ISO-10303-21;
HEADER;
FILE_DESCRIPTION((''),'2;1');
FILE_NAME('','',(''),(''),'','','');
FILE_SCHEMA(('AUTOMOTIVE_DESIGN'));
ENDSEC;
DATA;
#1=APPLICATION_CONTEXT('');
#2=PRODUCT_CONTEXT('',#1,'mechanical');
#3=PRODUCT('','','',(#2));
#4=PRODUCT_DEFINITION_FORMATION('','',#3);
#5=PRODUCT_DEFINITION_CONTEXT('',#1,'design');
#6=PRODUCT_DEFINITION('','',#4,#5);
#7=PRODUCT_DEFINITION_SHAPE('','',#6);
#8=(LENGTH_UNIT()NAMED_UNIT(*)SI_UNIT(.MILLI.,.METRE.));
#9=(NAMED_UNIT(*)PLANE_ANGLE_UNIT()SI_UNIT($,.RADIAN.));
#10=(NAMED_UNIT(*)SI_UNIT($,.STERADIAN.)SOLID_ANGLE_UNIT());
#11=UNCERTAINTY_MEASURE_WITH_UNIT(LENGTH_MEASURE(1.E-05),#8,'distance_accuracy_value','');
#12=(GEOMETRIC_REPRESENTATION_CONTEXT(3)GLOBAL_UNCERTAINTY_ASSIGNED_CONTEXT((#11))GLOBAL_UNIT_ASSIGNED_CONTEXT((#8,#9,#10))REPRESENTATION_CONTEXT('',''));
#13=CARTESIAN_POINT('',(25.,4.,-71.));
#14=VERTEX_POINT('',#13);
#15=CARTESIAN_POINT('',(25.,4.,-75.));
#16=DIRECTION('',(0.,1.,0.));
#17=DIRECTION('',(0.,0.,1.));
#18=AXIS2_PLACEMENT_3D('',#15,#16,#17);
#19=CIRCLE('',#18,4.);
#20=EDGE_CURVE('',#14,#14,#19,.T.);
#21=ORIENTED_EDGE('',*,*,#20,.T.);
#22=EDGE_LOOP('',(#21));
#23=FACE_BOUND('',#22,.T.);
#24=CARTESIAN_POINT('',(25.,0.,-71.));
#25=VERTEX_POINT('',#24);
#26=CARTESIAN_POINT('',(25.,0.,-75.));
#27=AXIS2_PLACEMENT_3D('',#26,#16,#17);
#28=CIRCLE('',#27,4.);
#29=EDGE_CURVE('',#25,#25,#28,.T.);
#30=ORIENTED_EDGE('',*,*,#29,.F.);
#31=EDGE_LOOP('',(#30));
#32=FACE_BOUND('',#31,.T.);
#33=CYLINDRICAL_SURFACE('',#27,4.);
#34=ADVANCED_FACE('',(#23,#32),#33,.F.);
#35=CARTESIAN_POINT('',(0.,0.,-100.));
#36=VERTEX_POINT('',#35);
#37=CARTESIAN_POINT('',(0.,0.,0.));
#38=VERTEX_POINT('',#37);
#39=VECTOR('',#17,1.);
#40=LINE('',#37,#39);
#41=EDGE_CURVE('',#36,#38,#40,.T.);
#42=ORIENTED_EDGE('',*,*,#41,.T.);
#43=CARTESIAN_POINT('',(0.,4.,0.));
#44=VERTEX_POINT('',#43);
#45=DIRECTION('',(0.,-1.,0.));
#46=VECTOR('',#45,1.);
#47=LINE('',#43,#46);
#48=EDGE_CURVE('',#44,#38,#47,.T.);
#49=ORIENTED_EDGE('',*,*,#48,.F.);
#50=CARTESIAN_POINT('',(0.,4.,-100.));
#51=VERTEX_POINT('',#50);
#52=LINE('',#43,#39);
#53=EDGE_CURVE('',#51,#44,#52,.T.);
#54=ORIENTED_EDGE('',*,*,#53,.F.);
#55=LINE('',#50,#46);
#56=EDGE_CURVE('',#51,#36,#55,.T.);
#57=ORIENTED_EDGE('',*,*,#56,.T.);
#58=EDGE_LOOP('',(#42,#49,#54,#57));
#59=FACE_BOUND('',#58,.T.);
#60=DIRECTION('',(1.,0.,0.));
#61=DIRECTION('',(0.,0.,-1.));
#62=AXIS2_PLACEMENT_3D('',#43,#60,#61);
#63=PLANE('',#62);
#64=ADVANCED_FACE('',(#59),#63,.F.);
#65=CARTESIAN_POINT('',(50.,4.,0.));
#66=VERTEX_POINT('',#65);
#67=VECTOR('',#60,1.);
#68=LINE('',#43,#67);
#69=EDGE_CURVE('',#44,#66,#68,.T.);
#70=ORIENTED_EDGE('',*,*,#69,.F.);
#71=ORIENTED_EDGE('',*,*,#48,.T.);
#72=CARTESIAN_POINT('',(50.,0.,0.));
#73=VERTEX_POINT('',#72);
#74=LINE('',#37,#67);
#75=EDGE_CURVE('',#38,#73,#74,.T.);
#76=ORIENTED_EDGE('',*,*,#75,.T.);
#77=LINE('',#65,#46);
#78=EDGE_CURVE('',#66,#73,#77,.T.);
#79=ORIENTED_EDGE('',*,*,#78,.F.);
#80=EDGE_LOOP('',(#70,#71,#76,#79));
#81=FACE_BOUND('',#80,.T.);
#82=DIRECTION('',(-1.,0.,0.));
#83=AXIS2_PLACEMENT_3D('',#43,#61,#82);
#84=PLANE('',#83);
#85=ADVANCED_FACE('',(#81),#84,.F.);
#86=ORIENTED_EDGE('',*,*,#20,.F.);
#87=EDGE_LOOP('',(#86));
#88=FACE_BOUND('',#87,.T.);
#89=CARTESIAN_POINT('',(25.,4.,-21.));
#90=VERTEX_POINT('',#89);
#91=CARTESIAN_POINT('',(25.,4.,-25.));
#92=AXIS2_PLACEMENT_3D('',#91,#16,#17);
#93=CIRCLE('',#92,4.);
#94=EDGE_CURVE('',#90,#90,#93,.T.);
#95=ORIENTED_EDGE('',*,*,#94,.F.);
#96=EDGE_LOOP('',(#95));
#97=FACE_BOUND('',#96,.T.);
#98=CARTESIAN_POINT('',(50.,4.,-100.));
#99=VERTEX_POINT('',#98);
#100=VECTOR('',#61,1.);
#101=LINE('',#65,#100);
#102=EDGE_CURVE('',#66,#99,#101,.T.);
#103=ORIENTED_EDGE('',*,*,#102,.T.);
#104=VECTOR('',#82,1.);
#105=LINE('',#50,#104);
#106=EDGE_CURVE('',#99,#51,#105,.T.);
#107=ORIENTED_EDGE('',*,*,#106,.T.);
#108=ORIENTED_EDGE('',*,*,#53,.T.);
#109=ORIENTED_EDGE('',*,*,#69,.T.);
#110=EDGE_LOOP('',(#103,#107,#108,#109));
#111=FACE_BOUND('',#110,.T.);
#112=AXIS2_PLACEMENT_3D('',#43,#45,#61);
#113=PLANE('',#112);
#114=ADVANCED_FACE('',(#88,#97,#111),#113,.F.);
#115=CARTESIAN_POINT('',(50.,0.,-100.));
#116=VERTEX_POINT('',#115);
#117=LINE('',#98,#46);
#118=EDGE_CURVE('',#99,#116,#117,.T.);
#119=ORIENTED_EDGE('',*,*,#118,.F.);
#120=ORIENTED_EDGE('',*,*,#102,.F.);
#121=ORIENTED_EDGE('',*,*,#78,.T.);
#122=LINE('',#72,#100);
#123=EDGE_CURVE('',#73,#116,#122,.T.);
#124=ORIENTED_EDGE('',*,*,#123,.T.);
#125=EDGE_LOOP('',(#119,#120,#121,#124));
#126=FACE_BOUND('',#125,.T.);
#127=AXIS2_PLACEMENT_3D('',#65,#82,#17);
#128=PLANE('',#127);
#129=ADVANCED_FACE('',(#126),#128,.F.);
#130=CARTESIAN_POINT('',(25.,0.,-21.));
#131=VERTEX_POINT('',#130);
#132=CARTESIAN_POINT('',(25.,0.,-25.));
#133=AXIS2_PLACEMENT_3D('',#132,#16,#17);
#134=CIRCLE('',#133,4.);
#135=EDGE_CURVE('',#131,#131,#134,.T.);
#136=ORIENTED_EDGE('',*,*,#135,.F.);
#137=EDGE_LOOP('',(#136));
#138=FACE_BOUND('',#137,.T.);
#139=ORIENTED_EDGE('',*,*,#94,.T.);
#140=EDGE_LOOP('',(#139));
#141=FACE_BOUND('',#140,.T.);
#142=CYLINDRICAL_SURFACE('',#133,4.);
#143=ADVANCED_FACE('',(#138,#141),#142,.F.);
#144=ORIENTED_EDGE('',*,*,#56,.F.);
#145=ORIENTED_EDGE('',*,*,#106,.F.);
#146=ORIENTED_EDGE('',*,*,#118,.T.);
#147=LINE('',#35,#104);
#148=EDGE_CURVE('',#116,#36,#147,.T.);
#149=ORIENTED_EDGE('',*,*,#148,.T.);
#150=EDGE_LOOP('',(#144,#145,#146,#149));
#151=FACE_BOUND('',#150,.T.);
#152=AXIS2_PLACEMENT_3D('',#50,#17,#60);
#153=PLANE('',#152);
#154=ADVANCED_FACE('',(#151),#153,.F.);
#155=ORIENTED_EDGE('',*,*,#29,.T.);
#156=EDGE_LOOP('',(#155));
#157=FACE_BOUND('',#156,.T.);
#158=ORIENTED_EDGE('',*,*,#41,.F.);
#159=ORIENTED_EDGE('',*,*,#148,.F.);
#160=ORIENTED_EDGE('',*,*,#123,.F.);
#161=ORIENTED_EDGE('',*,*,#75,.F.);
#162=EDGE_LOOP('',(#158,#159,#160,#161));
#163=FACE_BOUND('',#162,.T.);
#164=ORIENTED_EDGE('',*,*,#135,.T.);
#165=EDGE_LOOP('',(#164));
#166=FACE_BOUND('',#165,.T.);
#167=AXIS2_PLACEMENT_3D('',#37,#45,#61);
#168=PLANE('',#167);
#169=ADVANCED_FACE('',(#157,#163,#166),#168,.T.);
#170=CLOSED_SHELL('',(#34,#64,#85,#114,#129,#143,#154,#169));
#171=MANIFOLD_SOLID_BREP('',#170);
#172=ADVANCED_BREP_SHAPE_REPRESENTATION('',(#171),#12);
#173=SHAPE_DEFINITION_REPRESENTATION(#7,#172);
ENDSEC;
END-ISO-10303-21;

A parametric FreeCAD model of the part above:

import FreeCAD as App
import Part
import Sketcher

V = App.Vector
Q = App.Units.Quantity


def add_polygon(sketch, points):
    """Adds a closed chain of lines whose ends are joined by coincident constraints."""
    first, n = sketch.GeometryCount, len(points)
    for a, b in zip(points, points[1:] + points[:1]):
        sketch.addGeometry(Part.LineSegment(App.Vector(*a, 0), App.Vector(*b, 0)), False)
    for i in range(n):
        sketch.addConstraint(Sketcher.Constraint("Coincident", first + i, 2, first + (i + 1) % n, 1))

doc = App.newDocument("Part")
body = doc.addObject("PartDesign::Body", "Body")

sketch1 = doc.addObject("Sketcher::SketchObject", "Sketch")
body.addObject(sketch1)
sketch1.AttachmentSupport = (doc.XZ_Plane, [""])
sketch1.MapMode = "FlatFace"
add_polygon(sketch1, [(0, -100), (0, 0), (50, 0), (50, -100)])
sketch1.addConstraint([
    Sketcher.Constraint("Vertical", 0),
    Sketcher.Constraint("Horizontal", 1),
    Sketcher.Constraint("Vertical", 2),
    Sketcher.Constraint("Horizontal", 3),
    Sketcher.Constraint("Coincident", 0, 2, -1, 1),
    Sketcher.Constraint("DistanceX", 1, 1, 1, 2, Q("50 mm")),
    Sketcher.Constraint("DistanceY", 0, 1, 0, 2, Q("100 mm")),
])
pad1 = doc.addObject("PartDesign::Pad", "Pad")
body.addObject(pad1)
pad1.Profile = sketch1
pad1.Length = 4
pad1.Reversed = True

sketch2 = doc.addObject("Sketcher::SketchObject", "Sketch001")
body.addObject(sketch2)
sketch2.AttachmentSupport = (doc.XZ_Plane, [""])
sketch2.MapMode = "FlatFace"
sketch2.AttachmentOffset = App.Placement(V(0, 0, -4), App.Rotation())
sketch2.addGeometry([
    Part.Circle(V(25, -75, 0), V(0, 0, 1), 4),
    Part.Circle(V(25, -25, 0), V(0, 0, 1), 4),
], False)
sketch2.addConstraint([
    Sketcher.Constraint("Equal", 0, 1),
    Sketcher.Constraint("Vertical", 0, 3, 1, 3),
    Sketcher.Constraint("Diameter", 0, Q("8 mm")),
    Sketcher.Constraint("DistanceX", -1, 1, 0, 3, Q("25 mm")),
    Sketcher.Constraint("DistanceY", 0, 3, -1, 1, Q("75 mm")),
    Sketcher.Constraint("DistanceY", 1, 3, -1, 1, Q("25 mm")),
])
pocket1 = doc.addObject("PartDesign::Pocket", "Pocket")
body.addObject(pocket1)
pocket1.Profile = sketch2
pocket1.Type = "ThroughAll"
pocket1.Reversed = True

doc.recompute()
